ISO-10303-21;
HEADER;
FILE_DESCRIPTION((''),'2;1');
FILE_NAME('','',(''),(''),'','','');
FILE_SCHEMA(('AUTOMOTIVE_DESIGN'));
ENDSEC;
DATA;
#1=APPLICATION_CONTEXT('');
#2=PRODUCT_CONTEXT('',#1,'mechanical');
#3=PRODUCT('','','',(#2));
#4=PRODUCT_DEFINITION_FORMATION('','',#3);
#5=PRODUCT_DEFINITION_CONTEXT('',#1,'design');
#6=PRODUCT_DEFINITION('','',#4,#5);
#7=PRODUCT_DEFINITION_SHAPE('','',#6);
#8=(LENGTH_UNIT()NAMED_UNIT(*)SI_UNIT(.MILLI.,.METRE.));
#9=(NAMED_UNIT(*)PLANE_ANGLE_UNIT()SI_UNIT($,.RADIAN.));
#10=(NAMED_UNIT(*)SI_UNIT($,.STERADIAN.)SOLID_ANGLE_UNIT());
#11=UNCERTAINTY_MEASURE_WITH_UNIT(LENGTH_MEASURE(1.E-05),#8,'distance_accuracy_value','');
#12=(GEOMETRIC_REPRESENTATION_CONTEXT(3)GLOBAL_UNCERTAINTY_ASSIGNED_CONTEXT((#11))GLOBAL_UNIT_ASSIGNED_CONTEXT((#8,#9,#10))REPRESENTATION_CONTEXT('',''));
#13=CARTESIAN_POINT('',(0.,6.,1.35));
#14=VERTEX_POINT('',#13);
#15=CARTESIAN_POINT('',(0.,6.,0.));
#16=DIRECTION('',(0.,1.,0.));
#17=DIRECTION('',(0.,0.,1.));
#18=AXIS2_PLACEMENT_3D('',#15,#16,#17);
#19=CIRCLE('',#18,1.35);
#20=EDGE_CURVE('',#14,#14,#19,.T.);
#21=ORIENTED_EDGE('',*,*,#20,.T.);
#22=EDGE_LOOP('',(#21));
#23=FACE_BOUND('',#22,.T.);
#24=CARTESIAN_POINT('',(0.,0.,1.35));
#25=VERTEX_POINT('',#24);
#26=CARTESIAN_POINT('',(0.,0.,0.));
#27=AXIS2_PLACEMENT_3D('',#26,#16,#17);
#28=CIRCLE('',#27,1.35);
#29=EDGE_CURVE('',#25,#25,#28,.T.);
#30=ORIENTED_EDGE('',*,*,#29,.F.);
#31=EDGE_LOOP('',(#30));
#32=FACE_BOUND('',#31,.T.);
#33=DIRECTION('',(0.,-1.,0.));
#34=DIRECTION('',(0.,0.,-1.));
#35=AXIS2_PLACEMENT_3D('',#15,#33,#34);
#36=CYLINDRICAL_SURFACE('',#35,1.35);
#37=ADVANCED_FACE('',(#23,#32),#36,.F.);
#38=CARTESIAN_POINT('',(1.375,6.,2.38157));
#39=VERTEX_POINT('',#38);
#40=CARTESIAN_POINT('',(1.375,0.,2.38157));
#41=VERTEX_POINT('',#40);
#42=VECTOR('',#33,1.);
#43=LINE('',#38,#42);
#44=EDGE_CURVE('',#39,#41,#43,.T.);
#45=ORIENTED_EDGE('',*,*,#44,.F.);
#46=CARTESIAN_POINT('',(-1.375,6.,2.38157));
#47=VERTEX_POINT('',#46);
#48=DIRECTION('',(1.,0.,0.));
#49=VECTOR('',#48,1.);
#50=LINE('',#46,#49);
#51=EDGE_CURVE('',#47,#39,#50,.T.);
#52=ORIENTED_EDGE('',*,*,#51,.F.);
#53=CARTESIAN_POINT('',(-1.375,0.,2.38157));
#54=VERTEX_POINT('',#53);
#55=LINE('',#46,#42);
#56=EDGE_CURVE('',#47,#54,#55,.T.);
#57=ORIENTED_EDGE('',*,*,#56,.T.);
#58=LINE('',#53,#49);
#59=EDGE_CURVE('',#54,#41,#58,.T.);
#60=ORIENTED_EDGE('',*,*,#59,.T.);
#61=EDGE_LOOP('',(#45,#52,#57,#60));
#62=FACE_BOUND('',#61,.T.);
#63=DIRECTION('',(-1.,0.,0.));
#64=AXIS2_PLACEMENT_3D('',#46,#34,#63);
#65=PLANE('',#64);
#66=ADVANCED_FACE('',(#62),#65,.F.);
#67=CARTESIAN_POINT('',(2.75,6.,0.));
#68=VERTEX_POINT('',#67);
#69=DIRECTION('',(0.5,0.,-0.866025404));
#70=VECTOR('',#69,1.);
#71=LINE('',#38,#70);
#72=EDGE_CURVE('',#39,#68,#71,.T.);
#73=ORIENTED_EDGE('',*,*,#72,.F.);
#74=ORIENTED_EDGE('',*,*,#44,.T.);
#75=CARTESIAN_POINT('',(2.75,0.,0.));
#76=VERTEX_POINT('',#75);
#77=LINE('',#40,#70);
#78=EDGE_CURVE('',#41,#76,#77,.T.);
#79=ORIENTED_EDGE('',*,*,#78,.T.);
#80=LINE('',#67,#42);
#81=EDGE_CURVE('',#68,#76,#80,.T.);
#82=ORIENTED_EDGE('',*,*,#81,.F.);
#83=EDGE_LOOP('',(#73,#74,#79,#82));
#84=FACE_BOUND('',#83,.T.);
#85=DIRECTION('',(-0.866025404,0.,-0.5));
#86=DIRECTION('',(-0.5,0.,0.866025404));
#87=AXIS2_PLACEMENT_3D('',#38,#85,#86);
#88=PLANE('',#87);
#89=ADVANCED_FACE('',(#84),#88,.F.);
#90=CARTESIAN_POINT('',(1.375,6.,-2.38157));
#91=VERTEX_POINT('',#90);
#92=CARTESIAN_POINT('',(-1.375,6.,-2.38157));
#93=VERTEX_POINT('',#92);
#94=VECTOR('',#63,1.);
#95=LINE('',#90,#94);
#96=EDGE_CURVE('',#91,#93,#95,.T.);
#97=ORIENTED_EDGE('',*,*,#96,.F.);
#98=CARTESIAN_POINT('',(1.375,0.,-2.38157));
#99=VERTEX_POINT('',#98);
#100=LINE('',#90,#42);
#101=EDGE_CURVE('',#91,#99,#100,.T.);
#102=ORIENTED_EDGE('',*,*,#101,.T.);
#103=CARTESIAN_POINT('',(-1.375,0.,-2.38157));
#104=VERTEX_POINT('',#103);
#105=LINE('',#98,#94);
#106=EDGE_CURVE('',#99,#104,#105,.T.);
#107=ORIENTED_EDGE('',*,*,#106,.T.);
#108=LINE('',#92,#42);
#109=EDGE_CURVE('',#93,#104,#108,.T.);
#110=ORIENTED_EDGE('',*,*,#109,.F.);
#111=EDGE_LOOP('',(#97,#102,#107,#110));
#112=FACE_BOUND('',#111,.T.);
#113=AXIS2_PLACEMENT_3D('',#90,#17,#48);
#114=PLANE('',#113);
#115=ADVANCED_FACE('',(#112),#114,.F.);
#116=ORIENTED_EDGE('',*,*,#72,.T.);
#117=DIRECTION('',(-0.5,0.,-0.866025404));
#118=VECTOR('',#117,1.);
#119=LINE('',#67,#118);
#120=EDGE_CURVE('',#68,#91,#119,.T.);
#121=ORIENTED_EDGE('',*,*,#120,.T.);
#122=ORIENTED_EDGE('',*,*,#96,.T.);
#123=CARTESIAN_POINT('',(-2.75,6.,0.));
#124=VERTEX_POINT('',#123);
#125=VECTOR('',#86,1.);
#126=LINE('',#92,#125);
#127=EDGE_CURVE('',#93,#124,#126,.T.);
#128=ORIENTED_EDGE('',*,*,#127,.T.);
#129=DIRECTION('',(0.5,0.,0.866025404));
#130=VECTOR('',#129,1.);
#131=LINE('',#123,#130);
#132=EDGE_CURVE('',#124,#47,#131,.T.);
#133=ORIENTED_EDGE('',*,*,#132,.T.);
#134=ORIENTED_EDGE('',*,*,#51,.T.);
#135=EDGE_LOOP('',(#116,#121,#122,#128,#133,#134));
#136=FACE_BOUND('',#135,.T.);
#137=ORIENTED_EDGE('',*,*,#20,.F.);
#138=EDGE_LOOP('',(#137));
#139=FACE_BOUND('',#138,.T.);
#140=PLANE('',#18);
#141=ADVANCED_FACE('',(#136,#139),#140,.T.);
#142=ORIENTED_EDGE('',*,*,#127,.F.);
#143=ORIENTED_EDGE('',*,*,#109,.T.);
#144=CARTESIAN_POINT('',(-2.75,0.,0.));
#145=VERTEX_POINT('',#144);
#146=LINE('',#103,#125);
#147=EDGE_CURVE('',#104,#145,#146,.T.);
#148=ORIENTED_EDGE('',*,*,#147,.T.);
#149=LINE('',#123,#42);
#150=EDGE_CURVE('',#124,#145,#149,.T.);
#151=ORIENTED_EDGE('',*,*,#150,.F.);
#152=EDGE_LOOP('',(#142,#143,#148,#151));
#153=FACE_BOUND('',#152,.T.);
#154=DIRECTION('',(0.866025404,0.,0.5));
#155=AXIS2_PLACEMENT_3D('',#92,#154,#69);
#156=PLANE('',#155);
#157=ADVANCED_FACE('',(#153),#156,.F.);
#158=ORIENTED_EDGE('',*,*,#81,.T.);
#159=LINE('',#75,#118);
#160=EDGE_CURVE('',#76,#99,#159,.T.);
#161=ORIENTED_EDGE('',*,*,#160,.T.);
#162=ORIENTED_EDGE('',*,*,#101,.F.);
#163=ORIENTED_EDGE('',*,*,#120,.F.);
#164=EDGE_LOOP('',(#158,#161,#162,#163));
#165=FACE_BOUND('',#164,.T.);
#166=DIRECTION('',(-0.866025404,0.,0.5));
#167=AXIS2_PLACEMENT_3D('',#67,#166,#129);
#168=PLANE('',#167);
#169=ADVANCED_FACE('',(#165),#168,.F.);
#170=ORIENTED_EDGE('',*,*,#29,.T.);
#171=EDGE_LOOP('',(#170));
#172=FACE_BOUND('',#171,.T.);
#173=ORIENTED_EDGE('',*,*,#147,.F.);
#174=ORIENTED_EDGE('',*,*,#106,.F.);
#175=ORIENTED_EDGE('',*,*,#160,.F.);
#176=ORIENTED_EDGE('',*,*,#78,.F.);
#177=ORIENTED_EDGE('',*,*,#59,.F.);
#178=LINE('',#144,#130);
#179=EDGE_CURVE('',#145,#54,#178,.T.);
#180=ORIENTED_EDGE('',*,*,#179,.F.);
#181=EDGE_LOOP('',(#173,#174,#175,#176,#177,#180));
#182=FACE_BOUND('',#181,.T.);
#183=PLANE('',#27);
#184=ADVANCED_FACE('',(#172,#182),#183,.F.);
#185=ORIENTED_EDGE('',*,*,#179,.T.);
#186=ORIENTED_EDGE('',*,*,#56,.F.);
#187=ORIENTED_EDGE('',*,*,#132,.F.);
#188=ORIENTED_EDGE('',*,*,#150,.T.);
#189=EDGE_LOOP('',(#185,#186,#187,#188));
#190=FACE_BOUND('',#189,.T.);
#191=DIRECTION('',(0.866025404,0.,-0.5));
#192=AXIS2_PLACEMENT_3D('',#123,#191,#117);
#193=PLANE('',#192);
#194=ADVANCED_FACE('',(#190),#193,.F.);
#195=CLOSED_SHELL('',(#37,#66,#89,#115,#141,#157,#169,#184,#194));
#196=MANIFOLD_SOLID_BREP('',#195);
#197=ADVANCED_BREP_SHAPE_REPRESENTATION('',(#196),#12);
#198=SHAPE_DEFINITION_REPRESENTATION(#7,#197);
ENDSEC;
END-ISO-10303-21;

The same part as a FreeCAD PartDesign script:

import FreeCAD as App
import Part
import Sketcher

V = App.Vector
Q = App.Units.Quantity

doc = App.newDocument("Part")
params = doc.addObject("Spreadsheet::Sheet", "Params")
for row, (alias, value) in enumerate([
    ("sketch1_diameter", "2.7 mm"),
    ("sketch1_width", "2.75 mm"),
    ("sketch1_length", "2.75 mm"),
    ("pad1_length", "6 mm"),
], start=1):
    params.set(f"A{row}", alias)
    params.set(f"B{row}", "=" + value)
    params.setAlias(f"B{row}", alias)

body = doc.addObject("PartDesign::Body", "Body")

# Sketch on XZ plane
sketch1 = body.newObject("Sketcher::SketchObject", "Sketch")
sketch1.AttachmentSupport = (doc.getObject("XZ_Plane"), [""])
sketch1.MapMode = "FlatFace"
sketch1.addGeometry([
    Part.LineSegment(V(2.75, 0, 0), V(1.375, -2.38157, 0)),  # 0
    Part.LineSegment(V(1.375, -2.38157, 0), V(-1.375, -2.38157, 0)),  # 1
    Part.LineSegment(V(-1.375, -2.38157, 0), V(-2.75, 0, 0)),  # 2
    Part.LineSegment(V(-2.75, 0, 0), V(-1.375, 2.38157, 0)),  # 3
    Part.LineSegment(V(-1.375, 2.38157, 0), V(1.375, 2.38157, 0)),  # 4
    Part.LineSegment(V(1.375, 2.38157, 0), V(2.75, 0, 0)),  # 5
    Part.Circle(V(0, 0, 0), V(0, 0, 1), 1.35),  # 6
], False)
sketch1.addConstraint([
    Sketcher.Constraint("Coincident", 0, 2, 1, 1),
    Sketcher.Constraint("Coincident", 1, 2, 2, 1),
    Sketcher.Constraint("Coincident", 2, 2, 3, 1),
    Sketcher.Constraint("Coincident", 3, 2, 4, 1),
    Sketcher.Constraint("Coincident", 4, 2, 5, 1),
    Sketcher.Constraint("Coincident", 5, 2, 0, 1),
    Sketcher.Constraint("Horizontal", 1),
    Sketcher.Constraint("Horizontal", 4),
    Sketcher.Constraint("Coincident", 6, 3, -1, 1),
    Sketcher.Constraint("Symmetric", 0, 2, 3, 2, -1, 1),
    Sketcher.Constraint("Symmetric", 2, 2, 5, 2, -1, 1),
    Sketcher.Constraint("PointOnObject", 2, 2, -1),
    Sketcher.Constraint("Parallel", 2, 5),
    Sketcher.Constraint("Vertical", 1, 2, 3, 2),
    Sketcher.Constraint("Diameter", 6, Q("2.7 mm")),
    Sketcher.Constraint("Angle", 0, Q("-120 deg")),
    Sketcher.Constraint("DistanceX", 1, 2, 1, 1, Q("2.75 mm")),
    Sketcher.Constraint("Distance", 0, Q("2.75 mm")),
])
sketch1.setExpression("Constraints[14]", "Params.sketch1_diameter")
sketch1.setExpression("Constraints[16]", "Params.sketch1_width")
sketch1.setExpression("Constraints[17]", "Params.sketch1_length")
pad1 = body.newObject("PartDesign::Pad", "Pad")
pad1.Profile = sketch1
pad1.setExpression("Length", "Params.pad1_length")
pad1.Reversed = True

doc.recompute()
